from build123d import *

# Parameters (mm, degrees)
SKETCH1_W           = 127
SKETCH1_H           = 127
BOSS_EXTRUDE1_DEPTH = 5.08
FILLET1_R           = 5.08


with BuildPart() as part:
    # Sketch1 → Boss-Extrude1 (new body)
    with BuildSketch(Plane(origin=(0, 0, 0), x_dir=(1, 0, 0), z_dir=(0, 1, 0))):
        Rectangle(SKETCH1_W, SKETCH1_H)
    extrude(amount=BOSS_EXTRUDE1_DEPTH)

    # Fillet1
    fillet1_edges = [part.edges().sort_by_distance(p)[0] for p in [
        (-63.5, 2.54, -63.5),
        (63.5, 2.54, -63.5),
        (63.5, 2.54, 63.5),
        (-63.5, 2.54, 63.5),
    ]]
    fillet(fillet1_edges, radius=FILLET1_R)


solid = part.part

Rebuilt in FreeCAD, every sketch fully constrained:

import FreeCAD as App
import Part
import Sketcher
from FreeCAD import Vector
Q = App.Units.Quantity


def edges_at(feature, points):
    """Names of the edges that pass closest to the given points."""
    edges = feature.Shape.Edges
    near = lambda p: min(range(len(edges)), key=lambda i: edges[i].distToShape(Part.Vertex(*p))[0])
    return sorted({f"Edge{near(p) + 1}" for p in points})


def add_polygon(sketch, points):
    """Adds a closed chain of lines whose ends are joined by coincident constraints."""
    first, n = sketch.GeometryCount, len(points)
    for a, b in zip(points, points[1:] + points[:1]):
        sketch.addGeometry(Part.LineSegment(App.Vector(*a, 0), App.Vector(*b, 0)), False)
    for i in range(n):
        sketch.addConstraint(Sketcher.Constraint("Coincident", first + i, 2, first + (i + 1) % n, 1))

doc = App.newDocument("Part")
body = doc.addObject("PartDesign::Body", "Body")

# Sketch on XZ plane
sketch1 = body.newObject("Sketcher::SketchObject", "Sketch")
sketch1.AttachmentSupport = (doc.getObject("XZ_Plane"), [""])
sketch1.MapMode = "FlatFace"
add_polygon(sketch1, [(-63.5, -63.5), (-63.5, 63.5), (63.5, 63.5), (63.5, -63.5)])  # lines 0-3
sketch1.addConstraint([
    Sketcher.Constraint("Vertical", 0),
    Sketcher.Constraint("Horizontal", 1),
    Sketcher.Constraint("Vertical", 2),
    Sketcher.Constraint("Horizontal", 3),
    Sketcher.Constraint("Symmetric", 0, 2, 2, 2, -1, 1),
    Sketcher.Constraint("Equal", 3, 0),
    Sketcher.Constraint("DistanceX", 1, 1, 1, 2, Q("5 in")),
])
pad1 = body.newObject("PartDesign::Pad", "Pad")
pad1.Profile = sketch1
pad1.Length = Q("0.2 in")
pad1.Reversed = True
doc.recompute()

fillet = body.newObject("PartDesign::Fillet", "Fillet")
fillet.Base = (pad1, edges_at(pad1, [
    (-63.5, 2.54, -63.5),
    (63.5, 2.54, -63.5),
    (63.5, 2.54, 63.5),
    (-63.5, 2.54, 63.5),
]))
fillet.Radius = Q("0.2 in")

doc.recompute()
